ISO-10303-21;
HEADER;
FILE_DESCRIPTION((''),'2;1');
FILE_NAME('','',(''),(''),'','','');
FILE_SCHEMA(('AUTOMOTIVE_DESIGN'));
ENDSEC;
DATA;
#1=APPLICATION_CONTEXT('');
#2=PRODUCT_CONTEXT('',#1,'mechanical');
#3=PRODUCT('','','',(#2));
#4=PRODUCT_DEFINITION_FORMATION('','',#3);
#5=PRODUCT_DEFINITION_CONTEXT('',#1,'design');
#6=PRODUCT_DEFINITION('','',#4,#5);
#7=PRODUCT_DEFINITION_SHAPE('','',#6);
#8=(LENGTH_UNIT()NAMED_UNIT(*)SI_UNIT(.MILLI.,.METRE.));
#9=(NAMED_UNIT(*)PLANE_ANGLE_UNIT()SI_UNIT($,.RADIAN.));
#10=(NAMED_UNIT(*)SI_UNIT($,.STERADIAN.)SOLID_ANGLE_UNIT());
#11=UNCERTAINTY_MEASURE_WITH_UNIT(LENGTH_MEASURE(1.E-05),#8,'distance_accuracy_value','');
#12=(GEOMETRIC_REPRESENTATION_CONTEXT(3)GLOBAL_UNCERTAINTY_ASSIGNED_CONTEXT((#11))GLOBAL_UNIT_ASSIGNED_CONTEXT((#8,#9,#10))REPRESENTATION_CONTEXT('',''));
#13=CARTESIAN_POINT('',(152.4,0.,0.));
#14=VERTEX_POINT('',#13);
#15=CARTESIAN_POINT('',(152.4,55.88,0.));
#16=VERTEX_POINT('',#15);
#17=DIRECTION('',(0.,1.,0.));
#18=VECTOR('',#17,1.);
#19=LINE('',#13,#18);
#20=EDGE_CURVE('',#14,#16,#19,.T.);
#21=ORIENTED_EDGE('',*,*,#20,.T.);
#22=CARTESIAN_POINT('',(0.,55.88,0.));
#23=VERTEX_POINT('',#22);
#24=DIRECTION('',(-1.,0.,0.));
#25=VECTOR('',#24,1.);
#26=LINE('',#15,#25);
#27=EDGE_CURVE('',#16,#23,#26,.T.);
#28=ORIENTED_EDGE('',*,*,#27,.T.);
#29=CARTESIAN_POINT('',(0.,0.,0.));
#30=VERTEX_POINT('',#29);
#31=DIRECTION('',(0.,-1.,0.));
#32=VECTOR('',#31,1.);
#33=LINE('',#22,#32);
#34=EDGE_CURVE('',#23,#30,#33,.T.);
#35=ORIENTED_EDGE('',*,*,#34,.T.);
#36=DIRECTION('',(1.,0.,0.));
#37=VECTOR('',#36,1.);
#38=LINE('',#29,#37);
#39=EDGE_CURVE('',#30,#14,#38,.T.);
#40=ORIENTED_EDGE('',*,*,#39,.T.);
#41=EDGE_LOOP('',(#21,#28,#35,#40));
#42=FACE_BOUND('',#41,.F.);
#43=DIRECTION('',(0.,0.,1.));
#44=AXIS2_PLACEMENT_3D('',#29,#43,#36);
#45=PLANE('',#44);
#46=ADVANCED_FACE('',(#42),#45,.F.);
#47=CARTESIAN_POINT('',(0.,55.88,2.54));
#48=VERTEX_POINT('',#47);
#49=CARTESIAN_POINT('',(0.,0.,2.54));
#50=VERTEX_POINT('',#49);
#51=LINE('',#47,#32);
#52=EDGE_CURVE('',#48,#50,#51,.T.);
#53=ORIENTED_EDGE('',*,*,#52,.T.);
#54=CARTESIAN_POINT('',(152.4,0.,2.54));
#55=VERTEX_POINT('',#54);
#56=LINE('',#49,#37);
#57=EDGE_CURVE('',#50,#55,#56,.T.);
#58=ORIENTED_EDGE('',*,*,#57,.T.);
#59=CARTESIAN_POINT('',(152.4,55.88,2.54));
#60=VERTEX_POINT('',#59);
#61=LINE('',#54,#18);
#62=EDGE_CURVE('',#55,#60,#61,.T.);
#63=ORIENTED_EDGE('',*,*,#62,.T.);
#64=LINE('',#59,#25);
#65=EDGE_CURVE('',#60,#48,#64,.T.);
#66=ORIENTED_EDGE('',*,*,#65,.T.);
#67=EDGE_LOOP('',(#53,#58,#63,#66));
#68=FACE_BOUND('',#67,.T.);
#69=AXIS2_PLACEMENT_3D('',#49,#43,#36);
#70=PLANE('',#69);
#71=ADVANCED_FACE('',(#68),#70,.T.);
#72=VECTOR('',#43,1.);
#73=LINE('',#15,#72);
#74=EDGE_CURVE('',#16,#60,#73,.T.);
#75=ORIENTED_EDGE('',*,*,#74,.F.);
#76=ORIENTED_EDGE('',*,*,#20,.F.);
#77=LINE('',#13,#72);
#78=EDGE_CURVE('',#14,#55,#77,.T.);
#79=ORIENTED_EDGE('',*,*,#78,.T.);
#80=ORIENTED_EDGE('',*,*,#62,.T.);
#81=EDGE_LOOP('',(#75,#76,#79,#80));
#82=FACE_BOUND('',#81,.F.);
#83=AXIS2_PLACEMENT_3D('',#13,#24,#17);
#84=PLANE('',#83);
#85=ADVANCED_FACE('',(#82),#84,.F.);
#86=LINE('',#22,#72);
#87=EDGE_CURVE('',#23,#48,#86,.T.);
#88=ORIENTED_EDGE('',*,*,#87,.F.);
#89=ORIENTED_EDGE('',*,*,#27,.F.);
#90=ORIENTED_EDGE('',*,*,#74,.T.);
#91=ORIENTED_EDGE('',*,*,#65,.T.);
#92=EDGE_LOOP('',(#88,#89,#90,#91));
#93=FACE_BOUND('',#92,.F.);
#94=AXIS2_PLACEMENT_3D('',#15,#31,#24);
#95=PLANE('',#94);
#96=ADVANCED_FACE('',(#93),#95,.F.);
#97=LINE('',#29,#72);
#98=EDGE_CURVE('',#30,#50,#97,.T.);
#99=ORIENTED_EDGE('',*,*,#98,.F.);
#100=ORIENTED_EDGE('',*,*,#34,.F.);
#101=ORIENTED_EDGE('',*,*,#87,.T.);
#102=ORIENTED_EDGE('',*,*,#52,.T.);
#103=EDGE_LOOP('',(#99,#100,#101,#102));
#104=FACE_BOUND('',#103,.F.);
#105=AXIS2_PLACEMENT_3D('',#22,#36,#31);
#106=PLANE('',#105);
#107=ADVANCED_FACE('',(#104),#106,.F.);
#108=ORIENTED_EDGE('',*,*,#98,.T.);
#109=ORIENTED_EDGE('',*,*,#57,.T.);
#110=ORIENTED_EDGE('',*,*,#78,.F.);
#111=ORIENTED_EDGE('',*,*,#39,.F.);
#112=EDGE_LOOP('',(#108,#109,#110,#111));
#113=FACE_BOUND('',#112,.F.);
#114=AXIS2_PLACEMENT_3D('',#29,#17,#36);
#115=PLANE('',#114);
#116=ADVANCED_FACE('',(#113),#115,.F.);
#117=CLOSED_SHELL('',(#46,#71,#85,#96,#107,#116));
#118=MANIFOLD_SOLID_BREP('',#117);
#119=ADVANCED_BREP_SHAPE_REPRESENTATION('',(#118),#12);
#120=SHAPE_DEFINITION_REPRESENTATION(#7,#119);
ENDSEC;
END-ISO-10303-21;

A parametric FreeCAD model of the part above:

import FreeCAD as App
import Part
import Sketcher
from FreeCAD import Vector
Q = App.Units.Quantity

doc = App.newDocument("Part")
body = doc.addObject("PartDesign::Body", "Body")

# Sketch on XY plane
sketch1 = doc.addObject("Sketcher::SketchObject", "Sketch")
body.addObject(sketch1)
sketch1.AttachmentSupport = (doc.XY_Plane, [""])
sketch1.MapMode = "FlatFace"
sketch1.addGeometry([
    Part.LineSegment(Vector(0, 56, 0), Vector(0, 0, 0)),
    Part.LineSegment(Vector(0, 0, 0), Vector(152, 0, 0)),
    Part.LineSegment(Vector(152, 0, 0), Vector(152, 56, 0)),
    Part.LineSegment(Vector(152, 56, 0), Vector(0, 56, 0)),
], False)
sketch1.addConstraint([
    Sketcher.Constraint("Coincident", 0, 2, 1, 1),
    Sketcher.Constraint("Coincident", 1, 2, 2, 1),
    Sketcher.Constraint("Coincident", 2, 2, 3, 1),
    Sketcher.Constraint("Coincident", 3, 2, 0, 1),
    Sketcher.Constraint("Vertical", 0),
    Sketcher.Constraint("Horizontal", 1),
    Sketcher.Constraint("Vertical", 2),
    Sketcher.Constraint("Horizontal", 3),
    Sketcher.Constraint("Coincident", 0, 2, -1, 1),
    Sketcher.Constraint("DistanceX", 1, 1, 1, 2, Q("6 in")),
    Sketcher.Constraint("DistanceY", 0, 2, 0, 1, Q("2.2 in")),
])
pad1 = doc.addObject("PartDesign::Pad", "Pad")
body.addObject(pad1)
pad1.Profile = sketch1
pad1.Length = Q("0.1 in")

doc.recompute()
